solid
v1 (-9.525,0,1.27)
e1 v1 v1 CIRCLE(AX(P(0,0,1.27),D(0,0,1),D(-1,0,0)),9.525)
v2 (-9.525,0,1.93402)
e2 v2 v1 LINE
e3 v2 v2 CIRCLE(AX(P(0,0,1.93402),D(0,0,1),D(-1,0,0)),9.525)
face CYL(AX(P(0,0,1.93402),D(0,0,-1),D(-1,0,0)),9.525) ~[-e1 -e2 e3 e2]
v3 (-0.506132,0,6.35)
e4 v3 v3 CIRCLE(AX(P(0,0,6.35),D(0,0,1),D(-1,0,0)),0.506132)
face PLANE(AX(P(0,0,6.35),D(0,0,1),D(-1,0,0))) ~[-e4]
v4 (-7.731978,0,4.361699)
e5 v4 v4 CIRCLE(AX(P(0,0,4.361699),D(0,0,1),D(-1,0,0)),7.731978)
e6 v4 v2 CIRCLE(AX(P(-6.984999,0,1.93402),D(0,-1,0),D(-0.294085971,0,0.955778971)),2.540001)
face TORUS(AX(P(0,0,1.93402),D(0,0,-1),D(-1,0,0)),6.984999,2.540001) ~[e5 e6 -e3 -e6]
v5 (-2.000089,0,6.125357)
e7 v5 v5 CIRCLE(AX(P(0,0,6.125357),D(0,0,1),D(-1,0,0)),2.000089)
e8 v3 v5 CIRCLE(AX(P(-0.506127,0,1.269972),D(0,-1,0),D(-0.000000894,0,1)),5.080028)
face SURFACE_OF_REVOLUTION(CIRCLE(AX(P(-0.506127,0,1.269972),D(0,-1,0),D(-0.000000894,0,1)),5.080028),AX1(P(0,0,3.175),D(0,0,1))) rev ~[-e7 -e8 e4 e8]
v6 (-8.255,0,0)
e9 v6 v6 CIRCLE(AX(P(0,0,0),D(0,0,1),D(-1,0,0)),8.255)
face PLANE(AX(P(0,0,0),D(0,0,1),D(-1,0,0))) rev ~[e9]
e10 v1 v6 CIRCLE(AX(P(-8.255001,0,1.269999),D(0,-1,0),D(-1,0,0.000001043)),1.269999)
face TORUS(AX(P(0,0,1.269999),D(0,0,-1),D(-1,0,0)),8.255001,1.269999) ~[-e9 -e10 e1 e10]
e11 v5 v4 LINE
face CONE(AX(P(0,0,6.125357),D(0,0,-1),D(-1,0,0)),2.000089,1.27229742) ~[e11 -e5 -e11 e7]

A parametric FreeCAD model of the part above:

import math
import FreeCAD as App
import Part
import Sketcher
from FreeCAD import Vector
Q = App.Units.Quantity

doc = App.newDocument("Part")
body = doc.addObject("PartDesign::Body", "Body")

# Sketch on XZ plane
sketch1 = body.newObject("Sketcher::SketchObject", "Sketch")
sketch1.AttachmentSupport = (doc.getObject("XZ_Plane"), [""])
sketch1.MapMode = "FlatFace"
sketch1.addGeometry([
    Part.LineSegment(Vector(-8.255, 0, 0), Vector(0, 0, 0)),  # 0
    Part.LineSegment(Vector(0, 0, 0), Vector(0, 6.35, 0)),  # 1
    Part.LineSegment(Vector(0, 6.35, 0), Vector(-0.506132, 6.35, 0)),  # 2
    Part.ArcOfCircle(Part.Circle(Vector(-0.506127, 1.269972, 0), Vector(0, 0, 1), 5.080028), math.radians(90.000051), math.radians(107.102695)),  # 3
    Part.LineSegment(Vector(-2.000089, 6.125357, 0), Vector(-7.731978, 4.361699, 0)),  # 4
    Part.ArcOfCircle(Part.Circle(Vector(-6.984999, 1.93402, 0), Vector(0, 0, 1), 2.540001), math.radians(107.102736), math.radians(179.999998)),  # 5
    Part.LineSegment(Vector(-9.525, 1.93402, 0), Vector(-9.525, 1.27, 0)),  # 6
    Part.ArcOfCircle(Part.Circle(Vector(-8.255001, 1.269999, 0), Vector(0, 0, 1), 1.269999), math.radians(179.99994), math.radians(270.00006)),  # 7
], False)
sketch1.addConstraint([
    Sketcher.Constraint("Coincident", 0, 2, 1, 1),
    Sketcher.Constraint("Coincident", 1, 2, 2, 1),
    Sketcher.Constraint("Coincident", 2, 2, 3, 1),
    Sketcher.Constraint("Coincident", 3, 2, 4, 1),
    Sketcher.Constraint("Coincident", 4, 2, 5, 1),
    Sketcher.Constraint("Coincident", 5, 2, 6, 1),
    Sketcher.Constraint("Coincident", 6, 2, 7, 1),
    Sketcher.Constraint("Coincident", 7, 2, 0, 1),
    Sketcher.Constraint("Horizontal", 0),
    Sketcher.Constraint("Vertical", 1),
    Sketcher.Constraint("Horizontal", 2),
    Sketcher.Constraint("Vertical", 6),
    Sketcher.Constraint("Coincident", 0, 2, -1, 1),
    Sketcher.Constraint("Radius", 5, Q("0.1 in")),
    Sketcher.Constraint("Radius", 7, Q("0.0499999 in")),
    Sketcher.Constraint("DistanceY", 1, 1, 1, 2, Q("0.25 in")),
    Sketcher.Constraint("DistanceX", 0, 1, 0, 2, Q("0.325 in")),
    Sketcher.Constraint("DistanceY", -1, 1, 6, 2, Q("0.05 in")),
    Sketcher.Constraint("DistanceX", 6, 2, 7, 2, Q("0.05 in")),
    Sketcher.Constraint("Radius", 3, 5.080028),
    Sketcher.Constraint("DistanceY", 6, 2, 6, 1, 0.66402),
    Sketcher.Constraint("DistanceY", -1, 1, 4, 2, 4.361699),
    Sketcher.Constraint("DistanceX", 2, 2, 2, 1, 0.506132),
    Sketcher.Constraint("DistanceY", -1, 1, 5, 3, 1.93402),
    Sketcher.Constraint("DistanceX", 3, 2, -1, 1, 2.000089),
    Sketcher.Constraint("DistanceX", 3, 2, 3, 3, 1.493962),
])
revolution = body.newObject("PartDesign::Revolution", "Revolution")
revolution.Profile = sketch1
revolution.ReferenceAxis = (sketch1, ["V_Axis"])
revolution.Angle = 360

doc.recompute()
